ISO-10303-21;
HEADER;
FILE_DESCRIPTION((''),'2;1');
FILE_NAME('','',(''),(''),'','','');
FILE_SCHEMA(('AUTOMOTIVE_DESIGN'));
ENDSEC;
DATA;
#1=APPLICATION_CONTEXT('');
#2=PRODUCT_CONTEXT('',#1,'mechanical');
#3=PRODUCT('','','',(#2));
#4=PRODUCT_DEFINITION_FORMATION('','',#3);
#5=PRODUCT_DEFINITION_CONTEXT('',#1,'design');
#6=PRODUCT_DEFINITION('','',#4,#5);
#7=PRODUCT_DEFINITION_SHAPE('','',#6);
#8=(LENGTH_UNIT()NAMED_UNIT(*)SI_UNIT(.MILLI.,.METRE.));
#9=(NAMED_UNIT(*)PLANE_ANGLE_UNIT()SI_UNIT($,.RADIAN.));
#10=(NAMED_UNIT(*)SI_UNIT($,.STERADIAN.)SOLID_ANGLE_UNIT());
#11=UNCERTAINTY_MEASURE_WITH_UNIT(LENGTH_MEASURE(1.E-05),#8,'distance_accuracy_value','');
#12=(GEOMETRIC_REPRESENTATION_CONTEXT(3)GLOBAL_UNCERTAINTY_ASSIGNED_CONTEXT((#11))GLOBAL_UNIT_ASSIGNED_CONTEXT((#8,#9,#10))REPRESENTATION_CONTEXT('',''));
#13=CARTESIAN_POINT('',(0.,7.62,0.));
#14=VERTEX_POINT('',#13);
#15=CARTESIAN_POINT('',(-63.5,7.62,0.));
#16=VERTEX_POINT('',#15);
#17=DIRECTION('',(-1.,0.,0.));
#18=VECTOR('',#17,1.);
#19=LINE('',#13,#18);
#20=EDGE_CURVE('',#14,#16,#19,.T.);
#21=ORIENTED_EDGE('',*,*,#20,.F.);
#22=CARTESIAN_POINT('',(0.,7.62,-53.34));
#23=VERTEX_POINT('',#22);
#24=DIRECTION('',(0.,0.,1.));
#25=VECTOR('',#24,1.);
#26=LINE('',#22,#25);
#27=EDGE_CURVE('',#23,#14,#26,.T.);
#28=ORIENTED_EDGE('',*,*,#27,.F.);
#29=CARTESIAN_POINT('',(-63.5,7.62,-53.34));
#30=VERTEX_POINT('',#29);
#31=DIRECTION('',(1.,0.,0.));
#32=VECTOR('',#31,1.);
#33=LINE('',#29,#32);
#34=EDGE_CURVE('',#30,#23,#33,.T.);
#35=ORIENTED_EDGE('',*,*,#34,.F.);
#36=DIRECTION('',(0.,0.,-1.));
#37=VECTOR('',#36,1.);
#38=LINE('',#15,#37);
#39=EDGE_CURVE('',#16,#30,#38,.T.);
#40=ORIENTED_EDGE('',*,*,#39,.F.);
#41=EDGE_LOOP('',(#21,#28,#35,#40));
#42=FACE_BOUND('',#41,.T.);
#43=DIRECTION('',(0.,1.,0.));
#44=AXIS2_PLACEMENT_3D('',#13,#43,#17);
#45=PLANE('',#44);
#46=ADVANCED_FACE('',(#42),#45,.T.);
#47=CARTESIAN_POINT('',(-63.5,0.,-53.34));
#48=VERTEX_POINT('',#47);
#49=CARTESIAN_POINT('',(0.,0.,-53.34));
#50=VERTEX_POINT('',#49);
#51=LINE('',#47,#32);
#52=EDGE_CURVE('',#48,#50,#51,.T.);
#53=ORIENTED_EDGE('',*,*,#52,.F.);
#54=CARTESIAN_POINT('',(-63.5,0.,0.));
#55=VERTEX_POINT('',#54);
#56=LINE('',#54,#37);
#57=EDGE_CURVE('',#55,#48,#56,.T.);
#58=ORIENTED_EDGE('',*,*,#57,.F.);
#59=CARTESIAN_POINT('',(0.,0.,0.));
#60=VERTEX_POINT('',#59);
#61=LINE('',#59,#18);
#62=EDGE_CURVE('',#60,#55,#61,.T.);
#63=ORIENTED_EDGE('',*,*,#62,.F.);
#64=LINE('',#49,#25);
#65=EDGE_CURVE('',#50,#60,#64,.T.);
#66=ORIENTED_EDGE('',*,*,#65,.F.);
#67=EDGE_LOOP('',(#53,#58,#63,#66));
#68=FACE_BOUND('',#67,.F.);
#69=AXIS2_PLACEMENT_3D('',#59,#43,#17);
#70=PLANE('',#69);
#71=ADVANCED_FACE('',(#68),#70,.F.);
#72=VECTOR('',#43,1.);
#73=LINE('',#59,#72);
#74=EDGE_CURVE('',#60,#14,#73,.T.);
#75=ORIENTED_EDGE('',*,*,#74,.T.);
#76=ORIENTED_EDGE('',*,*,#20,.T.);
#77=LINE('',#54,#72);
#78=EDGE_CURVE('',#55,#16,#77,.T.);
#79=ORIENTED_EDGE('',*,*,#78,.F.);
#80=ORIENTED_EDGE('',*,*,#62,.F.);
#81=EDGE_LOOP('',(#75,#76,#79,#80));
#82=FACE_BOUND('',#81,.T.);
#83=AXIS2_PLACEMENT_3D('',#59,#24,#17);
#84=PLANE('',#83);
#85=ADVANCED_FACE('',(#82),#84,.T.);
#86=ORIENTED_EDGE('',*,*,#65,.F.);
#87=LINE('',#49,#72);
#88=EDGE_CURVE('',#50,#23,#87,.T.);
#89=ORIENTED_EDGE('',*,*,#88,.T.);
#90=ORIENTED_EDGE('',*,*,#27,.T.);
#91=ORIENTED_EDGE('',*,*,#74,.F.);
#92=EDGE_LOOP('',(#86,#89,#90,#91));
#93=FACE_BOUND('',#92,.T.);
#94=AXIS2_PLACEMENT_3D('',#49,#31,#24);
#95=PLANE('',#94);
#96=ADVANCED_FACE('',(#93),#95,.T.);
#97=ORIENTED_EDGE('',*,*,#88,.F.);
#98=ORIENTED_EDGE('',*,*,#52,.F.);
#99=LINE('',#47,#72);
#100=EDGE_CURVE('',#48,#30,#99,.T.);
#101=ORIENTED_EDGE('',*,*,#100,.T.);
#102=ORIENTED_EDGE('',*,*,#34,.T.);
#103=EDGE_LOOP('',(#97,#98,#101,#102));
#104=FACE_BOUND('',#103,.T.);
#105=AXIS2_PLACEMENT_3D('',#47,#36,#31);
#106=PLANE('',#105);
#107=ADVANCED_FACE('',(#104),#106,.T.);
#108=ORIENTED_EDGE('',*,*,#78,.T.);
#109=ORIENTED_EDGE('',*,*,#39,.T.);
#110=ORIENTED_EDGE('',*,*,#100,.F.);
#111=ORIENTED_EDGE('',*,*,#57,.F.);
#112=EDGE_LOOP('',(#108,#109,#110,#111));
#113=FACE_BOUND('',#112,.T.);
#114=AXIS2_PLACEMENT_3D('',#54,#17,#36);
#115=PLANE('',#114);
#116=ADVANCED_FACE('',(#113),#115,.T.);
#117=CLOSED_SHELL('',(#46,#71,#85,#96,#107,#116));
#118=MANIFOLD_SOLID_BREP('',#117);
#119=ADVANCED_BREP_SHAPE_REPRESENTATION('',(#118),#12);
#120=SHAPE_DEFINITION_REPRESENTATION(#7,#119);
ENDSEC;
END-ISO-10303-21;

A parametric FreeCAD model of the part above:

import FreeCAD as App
import Part
import Sketcher

V = App.Vector
Q = App.Units.Quantity


def add_polygon(sketch, points):
    """Adds a closed chain of lines whose ends are joined by coincident constraints."""
    first, n = sketch.GeometryCount, len(points)
    for a, b in zip(points, points[1:] + points[:1]):
        sketch.addGeometry(Part.LineSegment(App.Vector(*a, 0), App.Vector(*b, 0)), False)
    for i in range(n):
        sketch.addConstraint(Sketcher.Constraint("Coincident", first + i, 2, first + (i + 1) % n, 1))

doc = App.newDocument("Part")
params = doc.addObject("Spreadsheet::Sheet", "Params")
for row, (alias, value) in enumerate([
    ("sketch1_width", "2.5 in"),
    ("sketch1_height", "2.1 in"),
    ("pad1_length", "0.3 in"),
], start=1):
    params.set(f"A{row}", alias)
    params.set(f"B{row}", "=" + value)
    params.setAlias(f"B{row}", alias)

body = doc.addObject("PartDesign::Body", "Body")

# Sketch on XZ plane
sketch1 = doc.addObject("Sketcher::SketchObject", "Sketch")
body.addObject(sketch1)
sketch1.AttachmentSupport = (doc.XZ_Plane, [""])
sketch1.MapMode = "FlatFace"
add_polygon(sketch1, [(-63.5, 0), (0, 0), (0, -53.34), (-63.5, -53.34)])  # lines 0-3
sketch1.addConstraint([
    Sketcher.Constraint("Horizontal", 0),
    Sketcher.Constraint("Vertical", 1),
    Sketcher.Constraint("Horizontal", 2),
    Sketcher.Constraint("Vertical", 3),
    Sketcher.Constraint("Coincident", 0, 2, -1, 1),
    Sketcher.Constraint("DistanceX", 0, 1, 0, 2, Q("2.5 in")),
    Sketcher.Constraint("DistanceY", 1, 2, 1, 1, Q("2.1 in")),
])
sketch1.setExpression("Constraints[9]", "Params.sketch1_width")
sketch1.setExpression("Constraints[10]", "Params.sketch1_height")
pad1 = doc.addObject("PartDesign::Pad", "Pad")
body.addObject(pad1)
pad1.Profile = sketch1
pad1.setExpression("Length", "Params.pad1_length")
pad1.Reversed = True

doc.recompute()
